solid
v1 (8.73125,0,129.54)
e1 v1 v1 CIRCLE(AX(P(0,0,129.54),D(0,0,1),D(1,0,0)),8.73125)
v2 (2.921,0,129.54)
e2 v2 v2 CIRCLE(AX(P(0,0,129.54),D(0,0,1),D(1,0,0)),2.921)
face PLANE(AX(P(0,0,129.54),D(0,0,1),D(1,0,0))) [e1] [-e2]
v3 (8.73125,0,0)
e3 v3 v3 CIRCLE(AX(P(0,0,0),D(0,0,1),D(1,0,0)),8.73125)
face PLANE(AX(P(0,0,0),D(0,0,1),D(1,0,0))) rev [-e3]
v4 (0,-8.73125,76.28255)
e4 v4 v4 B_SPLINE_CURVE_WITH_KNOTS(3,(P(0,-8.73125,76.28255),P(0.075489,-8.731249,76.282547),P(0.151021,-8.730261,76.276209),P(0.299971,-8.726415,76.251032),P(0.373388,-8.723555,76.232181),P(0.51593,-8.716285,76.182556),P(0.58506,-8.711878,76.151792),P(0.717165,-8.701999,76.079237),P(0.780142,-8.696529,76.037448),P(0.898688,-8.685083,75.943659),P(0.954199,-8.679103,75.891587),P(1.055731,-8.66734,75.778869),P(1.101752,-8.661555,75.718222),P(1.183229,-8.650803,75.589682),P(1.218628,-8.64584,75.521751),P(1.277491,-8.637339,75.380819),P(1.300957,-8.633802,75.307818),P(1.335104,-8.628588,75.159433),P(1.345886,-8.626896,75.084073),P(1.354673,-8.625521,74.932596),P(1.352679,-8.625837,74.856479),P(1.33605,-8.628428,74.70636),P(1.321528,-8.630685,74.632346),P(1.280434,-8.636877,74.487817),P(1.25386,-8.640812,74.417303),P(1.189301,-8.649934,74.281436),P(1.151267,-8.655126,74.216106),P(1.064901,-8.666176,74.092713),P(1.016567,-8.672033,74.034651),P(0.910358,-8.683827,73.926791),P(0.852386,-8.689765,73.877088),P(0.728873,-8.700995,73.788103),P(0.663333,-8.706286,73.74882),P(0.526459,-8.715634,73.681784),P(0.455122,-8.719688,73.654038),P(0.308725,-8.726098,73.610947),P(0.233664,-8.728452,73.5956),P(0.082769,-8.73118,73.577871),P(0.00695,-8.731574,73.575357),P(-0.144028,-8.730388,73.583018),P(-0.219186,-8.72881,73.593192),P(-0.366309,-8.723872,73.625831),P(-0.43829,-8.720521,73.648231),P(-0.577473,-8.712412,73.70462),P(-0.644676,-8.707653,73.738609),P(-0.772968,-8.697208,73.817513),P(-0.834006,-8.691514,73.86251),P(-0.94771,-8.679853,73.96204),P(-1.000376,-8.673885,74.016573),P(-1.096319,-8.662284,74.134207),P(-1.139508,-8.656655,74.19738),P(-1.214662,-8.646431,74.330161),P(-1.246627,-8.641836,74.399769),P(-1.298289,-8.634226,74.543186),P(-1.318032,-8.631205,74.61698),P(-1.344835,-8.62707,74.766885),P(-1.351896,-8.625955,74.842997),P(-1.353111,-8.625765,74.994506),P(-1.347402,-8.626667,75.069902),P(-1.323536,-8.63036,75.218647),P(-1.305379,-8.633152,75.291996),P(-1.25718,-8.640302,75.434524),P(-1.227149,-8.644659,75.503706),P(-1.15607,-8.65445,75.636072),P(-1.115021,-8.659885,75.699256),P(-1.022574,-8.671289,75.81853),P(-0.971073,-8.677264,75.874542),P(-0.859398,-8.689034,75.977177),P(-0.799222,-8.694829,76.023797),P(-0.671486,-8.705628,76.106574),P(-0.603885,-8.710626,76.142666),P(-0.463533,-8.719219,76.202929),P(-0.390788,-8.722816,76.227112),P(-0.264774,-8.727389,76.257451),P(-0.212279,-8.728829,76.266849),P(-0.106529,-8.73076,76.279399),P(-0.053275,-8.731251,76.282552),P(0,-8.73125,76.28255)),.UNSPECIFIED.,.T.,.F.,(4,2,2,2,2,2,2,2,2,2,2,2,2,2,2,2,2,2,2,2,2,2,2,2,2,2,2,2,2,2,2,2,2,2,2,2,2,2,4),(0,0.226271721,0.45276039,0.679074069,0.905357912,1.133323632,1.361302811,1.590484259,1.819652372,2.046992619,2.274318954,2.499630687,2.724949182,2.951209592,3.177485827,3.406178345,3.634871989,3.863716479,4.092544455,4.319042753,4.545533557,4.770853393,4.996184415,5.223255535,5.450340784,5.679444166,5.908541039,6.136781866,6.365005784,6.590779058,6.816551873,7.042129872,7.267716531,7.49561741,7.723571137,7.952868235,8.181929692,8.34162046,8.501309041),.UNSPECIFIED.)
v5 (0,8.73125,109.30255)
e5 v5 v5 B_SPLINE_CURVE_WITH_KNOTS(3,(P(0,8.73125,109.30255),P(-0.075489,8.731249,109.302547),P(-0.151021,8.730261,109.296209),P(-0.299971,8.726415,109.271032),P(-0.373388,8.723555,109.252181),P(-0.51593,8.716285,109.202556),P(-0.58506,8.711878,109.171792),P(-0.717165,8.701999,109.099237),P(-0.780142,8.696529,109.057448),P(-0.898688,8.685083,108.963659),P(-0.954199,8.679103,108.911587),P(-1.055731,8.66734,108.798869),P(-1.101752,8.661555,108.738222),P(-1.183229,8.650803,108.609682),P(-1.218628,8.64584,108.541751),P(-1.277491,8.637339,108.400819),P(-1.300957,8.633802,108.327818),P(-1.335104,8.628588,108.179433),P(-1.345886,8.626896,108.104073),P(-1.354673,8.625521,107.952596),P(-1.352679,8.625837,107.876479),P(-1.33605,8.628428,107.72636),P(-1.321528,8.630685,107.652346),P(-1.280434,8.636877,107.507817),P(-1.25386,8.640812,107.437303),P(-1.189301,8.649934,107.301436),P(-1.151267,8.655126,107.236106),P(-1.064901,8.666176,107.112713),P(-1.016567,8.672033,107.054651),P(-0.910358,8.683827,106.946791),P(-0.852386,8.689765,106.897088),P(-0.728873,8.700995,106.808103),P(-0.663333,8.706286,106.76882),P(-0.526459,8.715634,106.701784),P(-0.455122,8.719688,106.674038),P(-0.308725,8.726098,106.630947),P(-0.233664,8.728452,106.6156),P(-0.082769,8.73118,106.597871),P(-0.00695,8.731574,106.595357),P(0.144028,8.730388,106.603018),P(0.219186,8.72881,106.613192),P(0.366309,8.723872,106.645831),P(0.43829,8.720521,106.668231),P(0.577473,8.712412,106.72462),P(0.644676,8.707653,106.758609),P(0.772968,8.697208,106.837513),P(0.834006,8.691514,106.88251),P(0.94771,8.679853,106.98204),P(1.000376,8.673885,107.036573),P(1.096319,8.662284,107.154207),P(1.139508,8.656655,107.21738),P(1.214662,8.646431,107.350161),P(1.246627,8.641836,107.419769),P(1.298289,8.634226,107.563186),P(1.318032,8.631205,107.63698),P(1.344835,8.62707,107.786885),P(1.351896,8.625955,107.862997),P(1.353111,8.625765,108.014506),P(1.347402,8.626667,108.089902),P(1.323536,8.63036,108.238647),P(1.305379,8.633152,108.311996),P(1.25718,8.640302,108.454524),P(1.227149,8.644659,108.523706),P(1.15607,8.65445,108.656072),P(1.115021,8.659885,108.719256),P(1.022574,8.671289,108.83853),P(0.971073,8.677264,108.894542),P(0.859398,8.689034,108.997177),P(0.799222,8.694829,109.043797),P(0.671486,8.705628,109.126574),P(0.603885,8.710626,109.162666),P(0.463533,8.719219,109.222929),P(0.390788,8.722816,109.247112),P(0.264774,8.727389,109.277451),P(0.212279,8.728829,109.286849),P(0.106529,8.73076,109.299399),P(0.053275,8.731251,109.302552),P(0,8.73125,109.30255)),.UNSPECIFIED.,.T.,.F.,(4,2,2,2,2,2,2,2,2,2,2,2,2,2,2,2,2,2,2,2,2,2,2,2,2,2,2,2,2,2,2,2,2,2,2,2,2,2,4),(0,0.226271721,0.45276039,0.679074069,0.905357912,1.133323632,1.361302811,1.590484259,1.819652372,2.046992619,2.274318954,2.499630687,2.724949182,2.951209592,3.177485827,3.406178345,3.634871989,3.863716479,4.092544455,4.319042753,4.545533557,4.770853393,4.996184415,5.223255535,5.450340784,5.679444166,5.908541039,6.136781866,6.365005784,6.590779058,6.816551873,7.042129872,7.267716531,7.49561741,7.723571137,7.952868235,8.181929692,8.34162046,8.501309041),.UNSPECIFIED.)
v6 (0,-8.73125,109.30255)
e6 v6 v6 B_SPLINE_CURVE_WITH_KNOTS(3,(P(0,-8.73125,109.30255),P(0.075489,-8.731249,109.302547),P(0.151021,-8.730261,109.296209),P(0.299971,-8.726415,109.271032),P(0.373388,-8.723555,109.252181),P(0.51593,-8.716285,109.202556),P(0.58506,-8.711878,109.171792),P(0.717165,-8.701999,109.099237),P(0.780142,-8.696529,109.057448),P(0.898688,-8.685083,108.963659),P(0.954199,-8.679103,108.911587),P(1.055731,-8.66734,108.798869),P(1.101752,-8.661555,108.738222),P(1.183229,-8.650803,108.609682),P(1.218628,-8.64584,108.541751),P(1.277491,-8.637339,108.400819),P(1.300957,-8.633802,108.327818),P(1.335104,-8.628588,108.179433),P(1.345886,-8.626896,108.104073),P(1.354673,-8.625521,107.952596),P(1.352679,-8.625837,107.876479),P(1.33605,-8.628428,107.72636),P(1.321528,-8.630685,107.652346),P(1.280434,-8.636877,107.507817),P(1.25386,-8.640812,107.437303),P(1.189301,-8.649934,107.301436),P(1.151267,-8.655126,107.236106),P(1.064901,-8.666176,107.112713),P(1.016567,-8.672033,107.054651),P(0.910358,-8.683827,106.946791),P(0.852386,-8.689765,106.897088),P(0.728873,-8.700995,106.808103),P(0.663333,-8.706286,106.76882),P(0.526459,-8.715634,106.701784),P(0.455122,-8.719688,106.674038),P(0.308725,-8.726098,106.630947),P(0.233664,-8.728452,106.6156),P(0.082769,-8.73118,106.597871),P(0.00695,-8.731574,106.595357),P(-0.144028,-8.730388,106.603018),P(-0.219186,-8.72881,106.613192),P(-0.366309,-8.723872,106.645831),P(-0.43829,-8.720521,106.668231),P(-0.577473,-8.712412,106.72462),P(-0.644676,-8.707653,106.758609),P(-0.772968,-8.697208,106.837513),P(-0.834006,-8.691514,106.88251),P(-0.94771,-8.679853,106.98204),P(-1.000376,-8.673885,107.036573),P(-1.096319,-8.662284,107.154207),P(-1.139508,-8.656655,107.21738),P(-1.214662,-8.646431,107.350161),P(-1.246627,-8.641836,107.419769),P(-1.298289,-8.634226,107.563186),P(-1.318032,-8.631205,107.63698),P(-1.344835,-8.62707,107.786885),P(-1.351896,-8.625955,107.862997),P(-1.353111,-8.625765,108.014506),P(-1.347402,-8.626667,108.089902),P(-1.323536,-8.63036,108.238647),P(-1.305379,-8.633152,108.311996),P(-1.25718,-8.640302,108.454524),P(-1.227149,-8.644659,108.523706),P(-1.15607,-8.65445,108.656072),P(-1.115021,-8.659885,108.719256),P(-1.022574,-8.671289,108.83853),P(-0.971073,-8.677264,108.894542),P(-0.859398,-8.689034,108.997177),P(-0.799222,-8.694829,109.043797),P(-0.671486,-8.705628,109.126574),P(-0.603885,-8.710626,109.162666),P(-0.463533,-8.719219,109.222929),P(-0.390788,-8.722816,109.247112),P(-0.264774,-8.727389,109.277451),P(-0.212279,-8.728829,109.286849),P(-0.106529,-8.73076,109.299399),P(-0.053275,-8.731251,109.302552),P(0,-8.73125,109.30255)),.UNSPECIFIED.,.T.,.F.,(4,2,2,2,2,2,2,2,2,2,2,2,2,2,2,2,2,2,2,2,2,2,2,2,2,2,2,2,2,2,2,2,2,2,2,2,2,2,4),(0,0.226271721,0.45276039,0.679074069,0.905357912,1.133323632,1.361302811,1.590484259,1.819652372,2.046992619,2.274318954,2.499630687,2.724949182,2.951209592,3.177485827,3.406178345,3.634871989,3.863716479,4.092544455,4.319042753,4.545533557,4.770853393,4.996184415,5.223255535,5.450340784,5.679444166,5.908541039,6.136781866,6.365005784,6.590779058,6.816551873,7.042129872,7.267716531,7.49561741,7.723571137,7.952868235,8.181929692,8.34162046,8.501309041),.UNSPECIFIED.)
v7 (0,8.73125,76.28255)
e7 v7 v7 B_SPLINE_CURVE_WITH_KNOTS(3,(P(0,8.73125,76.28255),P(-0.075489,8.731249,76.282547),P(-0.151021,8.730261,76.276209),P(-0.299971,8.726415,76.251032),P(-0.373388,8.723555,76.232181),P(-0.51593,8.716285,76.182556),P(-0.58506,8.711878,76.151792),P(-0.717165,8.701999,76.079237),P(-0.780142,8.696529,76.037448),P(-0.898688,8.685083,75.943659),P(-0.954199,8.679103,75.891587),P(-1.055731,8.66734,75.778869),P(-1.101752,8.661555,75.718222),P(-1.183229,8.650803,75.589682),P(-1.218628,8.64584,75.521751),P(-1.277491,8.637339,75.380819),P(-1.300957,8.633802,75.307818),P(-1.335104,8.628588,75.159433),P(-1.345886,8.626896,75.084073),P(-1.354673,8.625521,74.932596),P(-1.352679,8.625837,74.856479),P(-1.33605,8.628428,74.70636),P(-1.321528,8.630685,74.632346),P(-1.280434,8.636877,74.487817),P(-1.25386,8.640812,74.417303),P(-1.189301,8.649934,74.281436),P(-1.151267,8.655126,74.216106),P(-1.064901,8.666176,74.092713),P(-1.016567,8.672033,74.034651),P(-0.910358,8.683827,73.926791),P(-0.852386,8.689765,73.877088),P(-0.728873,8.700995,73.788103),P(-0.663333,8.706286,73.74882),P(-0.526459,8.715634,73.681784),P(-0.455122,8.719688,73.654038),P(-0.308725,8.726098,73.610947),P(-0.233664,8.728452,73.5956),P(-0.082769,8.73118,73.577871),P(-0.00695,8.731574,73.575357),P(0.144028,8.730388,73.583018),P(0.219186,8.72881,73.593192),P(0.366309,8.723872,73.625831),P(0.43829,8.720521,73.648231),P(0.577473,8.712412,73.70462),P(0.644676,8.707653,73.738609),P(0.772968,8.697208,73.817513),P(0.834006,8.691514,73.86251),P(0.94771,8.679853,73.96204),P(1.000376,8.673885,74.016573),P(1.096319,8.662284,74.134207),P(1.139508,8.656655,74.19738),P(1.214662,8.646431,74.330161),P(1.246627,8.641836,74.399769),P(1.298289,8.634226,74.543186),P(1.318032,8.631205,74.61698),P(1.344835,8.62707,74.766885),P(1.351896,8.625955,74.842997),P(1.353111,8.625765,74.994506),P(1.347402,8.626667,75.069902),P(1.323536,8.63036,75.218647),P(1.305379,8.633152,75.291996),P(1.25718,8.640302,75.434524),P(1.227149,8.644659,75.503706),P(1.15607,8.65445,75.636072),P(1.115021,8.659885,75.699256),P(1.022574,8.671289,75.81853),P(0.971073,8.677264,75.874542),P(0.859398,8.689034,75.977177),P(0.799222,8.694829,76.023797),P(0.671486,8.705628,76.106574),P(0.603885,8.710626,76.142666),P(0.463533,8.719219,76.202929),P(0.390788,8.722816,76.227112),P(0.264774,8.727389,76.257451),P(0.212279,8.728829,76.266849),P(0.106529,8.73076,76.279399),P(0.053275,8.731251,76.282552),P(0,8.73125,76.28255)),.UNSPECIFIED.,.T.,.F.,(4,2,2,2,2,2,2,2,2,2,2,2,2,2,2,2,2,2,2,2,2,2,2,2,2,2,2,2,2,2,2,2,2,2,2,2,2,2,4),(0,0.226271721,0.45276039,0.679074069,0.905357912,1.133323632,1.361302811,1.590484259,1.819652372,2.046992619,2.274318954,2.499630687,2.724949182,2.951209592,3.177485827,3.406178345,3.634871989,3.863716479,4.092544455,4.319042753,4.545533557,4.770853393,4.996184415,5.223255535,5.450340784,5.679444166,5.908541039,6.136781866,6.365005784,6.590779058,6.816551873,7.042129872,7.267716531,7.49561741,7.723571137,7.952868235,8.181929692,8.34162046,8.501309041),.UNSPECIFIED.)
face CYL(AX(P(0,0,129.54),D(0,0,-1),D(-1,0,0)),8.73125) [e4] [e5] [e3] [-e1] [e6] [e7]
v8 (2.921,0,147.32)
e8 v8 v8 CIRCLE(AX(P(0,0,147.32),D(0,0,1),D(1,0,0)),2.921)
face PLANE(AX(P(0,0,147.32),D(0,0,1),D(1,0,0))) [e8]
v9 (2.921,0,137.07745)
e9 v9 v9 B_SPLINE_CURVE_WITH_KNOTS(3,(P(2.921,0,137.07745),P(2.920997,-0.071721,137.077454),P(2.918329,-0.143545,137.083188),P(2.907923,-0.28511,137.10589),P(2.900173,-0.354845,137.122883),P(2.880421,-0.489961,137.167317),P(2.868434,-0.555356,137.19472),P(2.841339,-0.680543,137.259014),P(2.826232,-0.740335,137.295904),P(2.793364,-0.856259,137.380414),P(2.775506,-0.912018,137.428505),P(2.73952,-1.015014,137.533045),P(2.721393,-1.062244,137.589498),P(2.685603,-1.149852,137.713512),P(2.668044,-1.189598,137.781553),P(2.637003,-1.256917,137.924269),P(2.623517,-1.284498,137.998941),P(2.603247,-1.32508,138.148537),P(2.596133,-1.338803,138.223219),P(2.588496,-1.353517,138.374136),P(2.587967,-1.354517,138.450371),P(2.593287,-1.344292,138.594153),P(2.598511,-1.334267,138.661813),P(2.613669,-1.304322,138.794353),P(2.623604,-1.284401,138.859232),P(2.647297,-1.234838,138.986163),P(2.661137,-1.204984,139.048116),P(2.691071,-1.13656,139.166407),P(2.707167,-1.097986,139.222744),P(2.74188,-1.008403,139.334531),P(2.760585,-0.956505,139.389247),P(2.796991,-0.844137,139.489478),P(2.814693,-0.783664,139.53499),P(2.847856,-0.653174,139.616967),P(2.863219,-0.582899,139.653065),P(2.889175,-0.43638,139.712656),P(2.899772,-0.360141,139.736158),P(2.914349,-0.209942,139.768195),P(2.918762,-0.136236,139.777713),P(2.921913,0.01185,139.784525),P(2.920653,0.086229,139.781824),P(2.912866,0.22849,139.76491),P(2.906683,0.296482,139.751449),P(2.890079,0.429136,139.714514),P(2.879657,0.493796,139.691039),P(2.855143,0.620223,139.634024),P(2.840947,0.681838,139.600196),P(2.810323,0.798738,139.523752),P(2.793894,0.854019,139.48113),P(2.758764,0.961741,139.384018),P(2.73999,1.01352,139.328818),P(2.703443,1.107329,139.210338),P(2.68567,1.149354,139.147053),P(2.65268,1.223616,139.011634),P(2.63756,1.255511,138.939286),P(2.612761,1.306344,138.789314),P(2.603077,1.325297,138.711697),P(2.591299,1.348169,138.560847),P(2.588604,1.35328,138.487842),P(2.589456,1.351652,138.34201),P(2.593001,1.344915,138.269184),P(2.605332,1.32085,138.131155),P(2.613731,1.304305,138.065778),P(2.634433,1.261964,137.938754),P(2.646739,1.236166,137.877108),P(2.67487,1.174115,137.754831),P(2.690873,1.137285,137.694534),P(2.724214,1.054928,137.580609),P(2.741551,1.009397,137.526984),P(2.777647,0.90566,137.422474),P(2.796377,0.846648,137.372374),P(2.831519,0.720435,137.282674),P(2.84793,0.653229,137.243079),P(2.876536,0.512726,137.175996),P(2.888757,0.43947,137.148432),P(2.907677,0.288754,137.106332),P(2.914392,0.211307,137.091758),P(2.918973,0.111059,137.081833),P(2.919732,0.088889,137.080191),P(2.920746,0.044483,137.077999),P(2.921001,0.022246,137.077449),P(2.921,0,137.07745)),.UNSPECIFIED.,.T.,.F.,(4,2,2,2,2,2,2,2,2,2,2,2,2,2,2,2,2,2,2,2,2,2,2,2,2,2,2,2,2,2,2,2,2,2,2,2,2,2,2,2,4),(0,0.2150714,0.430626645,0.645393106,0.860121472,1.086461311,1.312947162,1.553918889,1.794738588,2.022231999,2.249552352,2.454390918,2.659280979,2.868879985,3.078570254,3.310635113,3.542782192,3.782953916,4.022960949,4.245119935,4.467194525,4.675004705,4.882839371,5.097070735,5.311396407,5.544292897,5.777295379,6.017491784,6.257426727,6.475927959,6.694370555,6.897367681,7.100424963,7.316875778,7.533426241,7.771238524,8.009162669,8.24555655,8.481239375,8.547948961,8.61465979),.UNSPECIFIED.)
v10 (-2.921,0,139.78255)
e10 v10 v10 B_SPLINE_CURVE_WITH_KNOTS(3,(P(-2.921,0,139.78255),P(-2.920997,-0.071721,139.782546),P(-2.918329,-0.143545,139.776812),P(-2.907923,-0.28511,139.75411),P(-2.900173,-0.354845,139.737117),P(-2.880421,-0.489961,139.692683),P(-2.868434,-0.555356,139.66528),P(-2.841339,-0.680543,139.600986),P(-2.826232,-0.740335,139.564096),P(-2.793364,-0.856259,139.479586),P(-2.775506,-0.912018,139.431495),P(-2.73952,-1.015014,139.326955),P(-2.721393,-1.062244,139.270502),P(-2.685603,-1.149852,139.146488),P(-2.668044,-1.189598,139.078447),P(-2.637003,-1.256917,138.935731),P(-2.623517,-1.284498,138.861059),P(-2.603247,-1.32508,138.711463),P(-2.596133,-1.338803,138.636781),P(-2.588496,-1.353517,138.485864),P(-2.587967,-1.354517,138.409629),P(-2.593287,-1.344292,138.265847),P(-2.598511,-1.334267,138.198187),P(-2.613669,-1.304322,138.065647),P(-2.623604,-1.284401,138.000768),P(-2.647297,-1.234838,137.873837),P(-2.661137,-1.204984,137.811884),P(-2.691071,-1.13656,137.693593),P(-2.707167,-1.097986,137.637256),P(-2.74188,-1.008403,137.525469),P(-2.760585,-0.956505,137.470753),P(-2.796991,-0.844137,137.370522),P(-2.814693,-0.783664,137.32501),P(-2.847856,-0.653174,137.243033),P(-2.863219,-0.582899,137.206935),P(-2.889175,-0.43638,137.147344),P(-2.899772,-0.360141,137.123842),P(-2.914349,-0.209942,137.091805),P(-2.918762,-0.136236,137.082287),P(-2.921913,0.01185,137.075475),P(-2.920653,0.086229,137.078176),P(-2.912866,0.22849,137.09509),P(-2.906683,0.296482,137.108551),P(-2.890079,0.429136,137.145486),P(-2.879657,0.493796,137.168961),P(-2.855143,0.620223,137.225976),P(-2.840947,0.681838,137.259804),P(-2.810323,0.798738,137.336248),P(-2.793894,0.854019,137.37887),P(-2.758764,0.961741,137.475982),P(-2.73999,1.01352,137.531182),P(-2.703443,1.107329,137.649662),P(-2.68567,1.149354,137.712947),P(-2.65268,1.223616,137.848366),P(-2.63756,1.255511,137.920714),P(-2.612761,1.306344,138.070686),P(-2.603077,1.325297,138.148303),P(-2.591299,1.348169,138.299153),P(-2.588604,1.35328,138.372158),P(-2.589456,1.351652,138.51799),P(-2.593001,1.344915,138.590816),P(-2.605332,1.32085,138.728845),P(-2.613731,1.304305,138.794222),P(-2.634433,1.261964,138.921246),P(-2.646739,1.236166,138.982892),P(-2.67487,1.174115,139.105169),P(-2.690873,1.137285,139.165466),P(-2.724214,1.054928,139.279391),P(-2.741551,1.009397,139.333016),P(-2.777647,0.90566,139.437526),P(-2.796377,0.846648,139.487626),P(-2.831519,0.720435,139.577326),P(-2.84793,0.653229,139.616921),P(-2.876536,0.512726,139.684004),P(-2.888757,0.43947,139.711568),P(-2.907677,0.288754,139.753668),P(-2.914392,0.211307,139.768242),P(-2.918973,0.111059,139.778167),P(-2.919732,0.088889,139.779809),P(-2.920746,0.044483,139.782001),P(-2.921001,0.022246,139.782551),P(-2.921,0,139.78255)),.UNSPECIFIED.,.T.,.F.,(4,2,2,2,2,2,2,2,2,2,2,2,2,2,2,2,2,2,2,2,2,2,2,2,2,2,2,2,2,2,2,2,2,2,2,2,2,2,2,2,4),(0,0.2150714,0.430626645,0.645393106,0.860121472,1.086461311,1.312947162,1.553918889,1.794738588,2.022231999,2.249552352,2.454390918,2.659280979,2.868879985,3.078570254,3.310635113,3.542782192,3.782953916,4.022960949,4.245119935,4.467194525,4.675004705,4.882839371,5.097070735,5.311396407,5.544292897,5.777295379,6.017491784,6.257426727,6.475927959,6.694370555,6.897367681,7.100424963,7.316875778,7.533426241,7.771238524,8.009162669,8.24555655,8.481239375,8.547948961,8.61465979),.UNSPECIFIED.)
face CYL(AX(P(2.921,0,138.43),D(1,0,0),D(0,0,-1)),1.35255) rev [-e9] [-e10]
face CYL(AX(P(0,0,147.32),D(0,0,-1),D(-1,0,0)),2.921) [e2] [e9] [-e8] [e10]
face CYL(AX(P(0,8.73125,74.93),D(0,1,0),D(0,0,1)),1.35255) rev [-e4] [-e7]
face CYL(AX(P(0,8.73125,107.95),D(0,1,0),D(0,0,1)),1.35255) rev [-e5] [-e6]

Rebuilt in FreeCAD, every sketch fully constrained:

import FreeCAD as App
import Part
import Sketcher

V = App.Vector
Q = App.Units.Quantity

doc = App.newDocument("Part")
body = doc.addObject("PartDesign::Body", "Body")

# Sketch on XY plane
sketch1 = body.newObject("Sketcher::SketchObject", "Sketch")
sketch1.AttachmentSupport = (doc.getObject("XY_Plane"), [""])
sketch1.MapMode = "FlatFace"
sketch1.addGeometry(Part.Circle(V(0, 0, 0), V(0, 0, 1), 8.73125), False)
sketch1.addConstraint([
    Sketcher.Constraint("Coincident", 0, 3, -1, 1),
    Sketcher.Constraint("Diameter", 0, Q("0.6875 in")),
])
pad1 = body.newObject("PartDesign::Pad", "Pad")
pad1.Profile = sketch1
pad1.Length = Q("5.1 in")

# Sketch on XY plane
sketch2 = body.newObject("Sketcher::SketchObject", "Sketch001")
sketch2.AttachmentSupport = (doc.getObject("XY_Plane"), [""])
sketch2.MapMode = "FlatFace"
sketch2.AttachmentOffset = App.Placement(V(0, 0, 5.1 * 25.4), App.Rotation())
sketch2.addGeometry(Part.Circle(V(0, 0, 0), V(0, 0, 1), 2.921), False)
sketch2.addConstraint([
    Sketcher.Constraint("Coincident", 0, 3, -1, 1),
    Sketcher.Constraint("Diameter", 0, Q("0.23 in")),
])
pad2 = body.newObject("PartDesign::Pad", "Pad001")
pad2.Profile = sketch2
pad2.Length = Q("0.7 in")

# Sketch on XZ plane
sketch3 = body.newObject("Sketcher::SketchObject", "Sketch002")
sketch3.AttachmentSupport = (doc.getObject("XZ_Plane"), [""])
sketch3.MapMode = "FlatFace"
sketch3.AttachmentOffset = App.Placement(V(0, 0, -0.34375 * 25.4), App.Rotation())
sketch3.addGeometry([
    Part.Circle(V(0, 74.93, 0), V(0, 0, 1), 1.35255),
    Part.Circle(V(0, 107.95, 0), V(0, 0, 1), 1.35255),
], False)
sketch3.addConstraint([
    Sketcher.Constraint("Equal", 0, 1),
    Sketcher.Constraint("PointOnObject", 0, 3, -2),
    Sketcher.Constraint("PointOnObject", 1, 3, -2),
    Sketcher.Constraint("Diameter", 0, Q("0.1065 in")),
    Sketcher.Constraint("DistanceY", 0, 3, 1, 3, Q("1.3 in")),
    Sketcher.Constraint("DistanceY", -1, 1, 0, 3, Q("2.95 in")),
])
doc.recompute()
hole = body.newObject("PartDesign::Hole", "Hole")
hole.Profile = sketch3
hole.ThreadType = "None"
hole.Diameter = Q("0.1065 in")
hole.DepthType = "ThroughAll"
hole.Reversed = True

# Sketch on YZ plane
sketch4 = body.newObject("Sketcher::SketchObject", "Sketch003")
sketch4.AttachmentSupport = (doc.getObject("YZ_Plane"), [""])
sketch4.MapMode = "FlatFace"
sketch4.AttachmentOffset = App.Placement(V(0, 0, 0.115 * 25.4), App.Rotation())
sketch4.addGeometry(Part.Circle(V(0, 138.43, 0), V(0, 0, 1), 1.35255), False)
sketch4.addConstraint([
    Sketcher.Constraint("PointOnObject", 0, 3, -2),
    Sketcher.Constraint("Diameter", 0, Q("0.1065 in")),
    Sketcher.Constraint("DistanceY", -1, 1, 0, 3, Q("5.45 in")),
])
doc.recompute()
hole2 = body.newObject("PartDesign::Hole", "Hole001")
hole2.Profile = sketch4
hole2.ThreadType = "None"
hole2.Diameter = Q("0.1065 in")
hole2.DepthType = "ThroughAll"

doc.recompute()
